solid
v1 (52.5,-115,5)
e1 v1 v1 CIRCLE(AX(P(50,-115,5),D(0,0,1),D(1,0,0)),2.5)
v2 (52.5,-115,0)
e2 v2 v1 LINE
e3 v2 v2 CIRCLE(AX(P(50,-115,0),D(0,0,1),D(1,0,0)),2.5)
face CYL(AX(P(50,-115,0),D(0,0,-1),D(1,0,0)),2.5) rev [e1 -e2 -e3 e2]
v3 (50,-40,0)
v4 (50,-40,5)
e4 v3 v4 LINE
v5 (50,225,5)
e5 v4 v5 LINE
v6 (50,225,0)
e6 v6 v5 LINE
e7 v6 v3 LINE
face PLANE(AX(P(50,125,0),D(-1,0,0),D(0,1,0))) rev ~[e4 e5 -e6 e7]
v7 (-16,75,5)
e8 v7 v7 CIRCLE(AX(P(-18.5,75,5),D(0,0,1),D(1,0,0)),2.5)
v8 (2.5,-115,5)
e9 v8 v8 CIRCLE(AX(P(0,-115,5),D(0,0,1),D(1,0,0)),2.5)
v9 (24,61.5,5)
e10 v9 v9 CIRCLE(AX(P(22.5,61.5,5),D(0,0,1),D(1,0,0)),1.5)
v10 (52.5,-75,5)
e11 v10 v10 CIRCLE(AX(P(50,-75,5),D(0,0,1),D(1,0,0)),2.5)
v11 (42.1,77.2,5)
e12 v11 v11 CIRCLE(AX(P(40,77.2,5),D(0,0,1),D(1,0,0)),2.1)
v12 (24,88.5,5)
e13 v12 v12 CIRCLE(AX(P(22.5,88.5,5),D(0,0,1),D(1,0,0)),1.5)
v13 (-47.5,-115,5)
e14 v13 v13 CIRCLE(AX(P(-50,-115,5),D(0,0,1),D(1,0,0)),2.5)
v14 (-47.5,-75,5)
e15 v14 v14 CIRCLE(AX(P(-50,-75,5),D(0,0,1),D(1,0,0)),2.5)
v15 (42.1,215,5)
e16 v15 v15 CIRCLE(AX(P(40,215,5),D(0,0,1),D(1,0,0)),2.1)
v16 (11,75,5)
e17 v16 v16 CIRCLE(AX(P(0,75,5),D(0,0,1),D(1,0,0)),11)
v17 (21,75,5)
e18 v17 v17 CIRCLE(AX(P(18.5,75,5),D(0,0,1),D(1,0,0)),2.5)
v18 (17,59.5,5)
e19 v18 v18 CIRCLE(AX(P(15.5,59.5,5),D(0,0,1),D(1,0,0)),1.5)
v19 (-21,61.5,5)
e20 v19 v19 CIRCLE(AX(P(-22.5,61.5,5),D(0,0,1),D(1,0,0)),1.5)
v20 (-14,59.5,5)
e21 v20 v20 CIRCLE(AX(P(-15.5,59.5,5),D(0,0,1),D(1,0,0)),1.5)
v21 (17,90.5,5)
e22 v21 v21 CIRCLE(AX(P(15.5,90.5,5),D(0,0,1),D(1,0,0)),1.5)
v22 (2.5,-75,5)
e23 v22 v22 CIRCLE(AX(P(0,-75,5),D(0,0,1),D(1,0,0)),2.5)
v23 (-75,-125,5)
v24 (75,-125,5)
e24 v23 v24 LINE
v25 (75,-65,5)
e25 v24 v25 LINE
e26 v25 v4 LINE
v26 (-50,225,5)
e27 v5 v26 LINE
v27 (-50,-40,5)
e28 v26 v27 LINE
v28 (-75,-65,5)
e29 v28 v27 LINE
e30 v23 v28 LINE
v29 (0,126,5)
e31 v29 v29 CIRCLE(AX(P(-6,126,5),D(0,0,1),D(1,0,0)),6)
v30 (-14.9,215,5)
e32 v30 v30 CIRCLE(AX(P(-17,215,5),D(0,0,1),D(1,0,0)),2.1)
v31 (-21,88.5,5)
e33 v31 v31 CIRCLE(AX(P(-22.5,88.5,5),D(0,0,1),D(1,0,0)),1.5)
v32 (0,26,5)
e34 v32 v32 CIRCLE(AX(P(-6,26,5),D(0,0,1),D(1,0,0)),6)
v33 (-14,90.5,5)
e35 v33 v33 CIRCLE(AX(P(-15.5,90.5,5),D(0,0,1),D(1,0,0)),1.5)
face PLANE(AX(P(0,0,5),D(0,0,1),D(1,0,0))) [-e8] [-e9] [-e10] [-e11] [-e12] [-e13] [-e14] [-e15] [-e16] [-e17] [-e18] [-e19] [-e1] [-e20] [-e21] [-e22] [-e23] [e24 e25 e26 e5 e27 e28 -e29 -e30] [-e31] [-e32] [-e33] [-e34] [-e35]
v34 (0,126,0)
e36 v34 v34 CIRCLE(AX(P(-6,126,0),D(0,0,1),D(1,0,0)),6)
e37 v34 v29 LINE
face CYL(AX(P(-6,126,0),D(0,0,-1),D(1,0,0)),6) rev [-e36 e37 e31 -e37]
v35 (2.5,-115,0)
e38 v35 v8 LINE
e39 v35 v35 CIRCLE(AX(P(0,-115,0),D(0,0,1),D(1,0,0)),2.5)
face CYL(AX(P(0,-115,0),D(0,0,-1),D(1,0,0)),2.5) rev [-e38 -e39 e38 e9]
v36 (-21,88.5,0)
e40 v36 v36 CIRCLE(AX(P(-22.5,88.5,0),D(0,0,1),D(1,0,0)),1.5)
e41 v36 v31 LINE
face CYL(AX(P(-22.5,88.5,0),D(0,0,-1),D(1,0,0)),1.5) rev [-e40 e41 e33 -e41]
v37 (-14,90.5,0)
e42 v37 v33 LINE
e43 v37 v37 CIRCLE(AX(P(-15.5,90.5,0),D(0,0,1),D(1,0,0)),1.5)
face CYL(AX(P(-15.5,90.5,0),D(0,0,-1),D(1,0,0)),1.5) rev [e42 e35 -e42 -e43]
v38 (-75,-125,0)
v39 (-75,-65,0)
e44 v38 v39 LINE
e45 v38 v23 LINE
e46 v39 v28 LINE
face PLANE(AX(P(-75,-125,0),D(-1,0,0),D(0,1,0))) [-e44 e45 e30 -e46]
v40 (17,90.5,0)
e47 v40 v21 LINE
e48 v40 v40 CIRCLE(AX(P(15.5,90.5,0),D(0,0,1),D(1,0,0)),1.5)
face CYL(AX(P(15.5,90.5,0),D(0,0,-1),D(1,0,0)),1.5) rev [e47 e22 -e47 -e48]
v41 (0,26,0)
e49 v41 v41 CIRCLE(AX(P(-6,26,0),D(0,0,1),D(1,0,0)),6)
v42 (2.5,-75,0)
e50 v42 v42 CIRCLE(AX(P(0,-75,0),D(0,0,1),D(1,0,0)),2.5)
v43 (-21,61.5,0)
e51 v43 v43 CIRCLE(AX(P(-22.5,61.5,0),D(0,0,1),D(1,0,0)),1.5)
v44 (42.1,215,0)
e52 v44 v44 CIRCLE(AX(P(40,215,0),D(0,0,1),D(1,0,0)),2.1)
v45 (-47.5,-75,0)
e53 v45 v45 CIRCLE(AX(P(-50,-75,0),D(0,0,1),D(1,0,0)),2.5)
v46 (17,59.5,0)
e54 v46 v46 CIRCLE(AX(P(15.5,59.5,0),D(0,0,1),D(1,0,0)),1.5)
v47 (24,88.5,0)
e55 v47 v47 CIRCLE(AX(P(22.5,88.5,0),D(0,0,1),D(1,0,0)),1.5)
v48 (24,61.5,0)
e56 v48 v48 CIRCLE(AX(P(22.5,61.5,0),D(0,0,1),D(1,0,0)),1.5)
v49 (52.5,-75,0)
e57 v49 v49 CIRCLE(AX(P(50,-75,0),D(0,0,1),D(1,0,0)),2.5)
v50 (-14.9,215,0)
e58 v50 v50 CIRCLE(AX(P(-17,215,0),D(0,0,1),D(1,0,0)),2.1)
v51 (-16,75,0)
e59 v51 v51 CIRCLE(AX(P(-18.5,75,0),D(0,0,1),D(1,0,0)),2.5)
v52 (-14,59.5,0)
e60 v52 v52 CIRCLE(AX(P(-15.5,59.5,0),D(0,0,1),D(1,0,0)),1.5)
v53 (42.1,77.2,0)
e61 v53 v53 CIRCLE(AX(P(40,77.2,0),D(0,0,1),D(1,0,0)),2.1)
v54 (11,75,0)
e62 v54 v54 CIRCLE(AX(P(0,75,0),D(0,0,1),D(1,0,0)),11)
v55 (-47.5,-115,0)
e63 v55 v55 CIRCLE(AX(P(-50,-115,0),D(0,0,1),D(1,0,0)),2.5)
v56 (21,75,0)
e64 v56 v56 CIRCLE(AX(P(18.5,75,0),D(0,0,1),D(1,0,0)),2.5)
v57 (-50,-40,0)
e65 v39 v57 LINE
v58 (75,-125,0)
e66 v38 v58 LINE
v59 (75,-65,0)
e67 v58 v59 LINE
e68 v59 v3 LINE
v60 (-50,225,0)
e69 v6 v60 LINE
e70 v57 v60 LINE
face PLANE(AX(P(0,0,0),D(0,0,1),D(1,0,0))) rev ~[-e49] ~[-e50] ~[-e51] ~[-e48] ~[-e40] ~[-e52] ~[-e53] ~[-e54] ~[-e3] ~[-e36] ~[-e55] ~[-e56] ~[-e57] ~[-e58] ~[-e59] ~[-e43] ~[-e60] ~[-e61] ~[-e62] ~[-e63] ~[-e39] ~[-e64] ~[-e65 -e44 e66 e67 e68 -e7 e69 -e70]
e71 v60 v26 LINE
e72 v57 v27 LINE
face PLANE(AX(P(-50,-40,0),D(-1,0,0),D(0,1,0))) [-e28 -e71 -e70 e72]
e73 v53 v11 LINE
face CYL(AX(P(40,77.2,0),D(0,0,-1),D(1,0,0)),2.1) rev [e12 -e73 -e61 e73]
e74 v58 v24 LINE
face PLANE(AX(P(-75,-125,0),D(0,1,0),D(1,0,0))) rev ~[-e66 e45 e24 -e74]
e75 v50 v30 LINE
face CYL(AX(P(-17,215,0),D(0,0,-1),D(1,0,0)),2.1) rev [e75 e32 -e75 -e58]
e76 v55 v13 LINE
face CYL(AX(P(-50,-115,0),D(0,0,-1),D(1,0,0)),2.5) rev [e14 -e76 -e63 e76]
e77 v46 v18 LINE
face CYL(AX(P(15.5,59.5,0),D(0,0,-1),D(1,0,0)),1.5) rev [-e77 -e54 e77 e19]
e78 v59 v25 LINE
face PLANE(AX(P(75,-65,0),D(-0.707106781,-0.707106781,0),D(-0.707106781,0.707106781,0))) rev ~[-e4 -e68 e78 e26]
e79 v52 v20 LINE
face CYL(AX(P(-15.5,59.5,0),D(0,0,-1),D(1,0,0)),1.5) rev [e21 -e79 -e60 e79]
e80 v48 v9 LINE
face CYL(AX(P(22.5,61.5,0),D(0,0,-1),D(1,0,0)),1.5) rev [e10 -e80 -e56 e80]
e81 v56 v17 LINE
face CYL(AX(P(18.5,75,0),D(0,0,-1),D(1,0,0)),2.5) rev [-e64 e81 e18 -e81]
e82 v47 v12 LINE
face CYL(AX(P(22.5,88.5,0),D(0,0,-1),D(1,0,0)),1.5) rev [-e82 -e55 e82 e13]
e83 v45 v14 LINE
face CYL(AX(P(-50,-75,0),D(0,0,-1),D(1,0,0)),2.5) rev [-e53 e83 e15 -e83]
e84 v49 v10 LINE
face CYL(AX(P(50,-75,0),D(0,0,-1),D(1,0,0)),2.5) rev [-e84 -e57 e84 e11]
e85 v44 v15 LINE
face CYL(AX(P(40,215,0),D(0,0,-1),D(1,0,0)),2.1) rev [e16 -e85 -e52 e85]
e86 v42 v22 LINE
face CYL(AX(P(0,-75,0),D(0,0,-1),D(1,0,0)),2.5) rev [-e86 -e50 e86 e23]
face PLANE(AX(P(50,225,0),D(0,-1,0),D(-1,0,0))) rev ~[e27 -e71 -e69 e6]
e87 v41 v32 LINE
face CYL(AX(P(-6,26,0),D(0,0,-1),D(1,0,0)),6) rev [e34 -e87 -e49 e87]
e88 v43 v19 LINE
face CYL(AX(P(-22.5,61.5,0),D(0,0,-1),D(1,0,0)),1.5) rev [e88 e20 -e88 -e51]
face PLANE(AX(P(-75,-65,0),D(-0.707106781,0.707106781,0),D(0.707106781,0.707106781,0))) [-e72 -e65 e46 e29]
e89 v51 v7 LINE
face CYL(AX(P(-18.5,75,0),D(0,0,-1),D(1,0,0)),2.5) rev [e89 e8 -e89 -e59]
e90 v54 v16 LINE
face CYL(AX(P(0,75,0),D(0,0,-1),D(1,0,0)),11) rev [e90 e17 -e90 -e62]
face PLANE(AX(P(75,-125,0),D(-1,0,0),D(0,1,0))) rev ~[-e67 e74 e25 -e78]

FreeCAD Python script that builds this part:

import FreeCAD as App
import Part
import Sketcher
from FreeCAD import Vector

doc = App.newDocument("Part")
body = doc.addObject("PartDesign::Body", "Body")

# Sketch on XY plane
sketch1 = doc.addObject("Sketcher::SketchObject", "Sketch")
body.addObject(sketch1)
sketch1.AttachmentSupport = (doc.XY_Plane, [""])
sketch1.MapMode = "FlatFace"
sketch1.addGeometry(Part.LineSegment(Vector(-75, -65, 0), Vector(-75, -125, 0)), False)
sketch1.addGeometry(Part.LineSegment(Vector(-75, -125, 0), Vector(75, -125, 0)), False)
sketch1.addGeometry(Part.LineSegment(Vector(75, -125, 0), Vector(75, -65, 0)), False)
sketch1.addGeometry(Part.LineSegment(Vector(75, -65, 0), Vector(50, -40, 0)), False)
sketch1.addGeometry(Part.LineSegment(Vector(50, -40, 0), Vector(50, 225, 0)), False)
sketch1.addGeometry(Part.LineSegment(Vector(50, 225, 0), Vector(-50, 225, 0)), False)
sketch1.addGeometry(Part.LineSegment(Vector(-50, 225, 0), Vector(-50, -40, 0)), False)
sketch1.addGeometry(Part.LineSegment(Vector(-50, -40, 0), Vector(-75, -65, 0)), False)
sketch1.addGeometry(Part.Circle(Vector(-50, -115, 0), Vector(0, 0, 1), 2.5), False)
sketch1.addGeometry(Part.Circle(Vector(-50, -75, 0), Vector(0, 0, 1), 2.5), False)
sketch1.addGeometry(Part.Circle(Vector(0, -115, 0), Vector(0, 0, 1), 2.5), False)
sketch1.addGeometry(Part.Circle(Vector(0, -75, 0), Vector(0, 0, 1), 2.5), False)
sketch1.addGeometry(Part.Circle(Vector(50, -115, 0), Vector(0, 0, 1), 2.5), False)
sketch1.addGeometry(Part.Circle(Vector(50, -75, 0), Vector(0, 0, 1), 2.5), False)
sketch1.addGeometry(Part.Circle(Vector(40, 215, 0), Vector(0, 0, 1), 2.1), False)
sketch1.addGeometry(Part.Circle(Vector(-6, 26, 0), Vector(0, 0, 1), 6), False)
sketch1.addGeometry(Part.Circle(Vector(-22.5, 61.5, 0), Vector(0, 0, 1), 1.5), False)
sketch1.addGeometry(Part.Circle(Vector(-22.5, 88.5, 0), Vector(0, 0, 1), 1.5), False)
sketch1.addGeometry(Part.Circle(Vector(-15.5, 59.5, 0), Vector(0, 0, 1), 1.5), False)
sketch1.addGeometry(Part.Circle(Vector(-18.5, 75, 0), Vector(0, 0, 1), 2.5), False)
sketch1.addGeometry(Part.Circle(Vector(-15.5, 90.5, 0), Vector(0, 0, 1), 1.5), False)
sketch1.addGeometry(Part.Circle(Vector(-6, 126, 0), Vector(0, 0, 1), 6), False)
sketch1.addGeometry(Part.Circle(Vector(-17, 215, 0), Vector(0, 0, 1), 2.1), False)
sketch1.addGeometry(Part.Circle(Vector(15.5, 59.5, 0), Vector(0, 0, 1), 1.5), False)
sketch1.addGeometry(Part.Circle(Vector(0, 75, 0), Vector(0, 0, 1), 11), False)
sketch1.addGeometry(Part.Circle(Vector(18.5, 75, 0), Vector(0, 0, 1), 2.5), False)
sketch1.addGeometry(Part.Circle(Vector(15.5, 90.5, 0), Vector(0, 0, 1), 1.5), False)
sketch1.addGeometry(Part.Circle(Vector(22.5, 61.5, 0), Vector(0, 0, 1), 1.5), False)
sketch1.addGeometry(Part.Circle(Vector(22.5, 88.5, 0), Vector(0, 0, 1), 1.5), False)
sketch1.addGeometry(Part.Circle(Vector(40, 77.2, 0), Vector(0, 0, 1), 2.1), False)
sketch1.addConstraint(Sketcher.Constraint("Coincident", 0, 2, 1, 1))
sketch1.addConstraint(Sketcher.Constraint("Coincident", 1, 2, 2, 1))
sketch1.addConstraint(Sketcher.Constraint("Coincident", 2, 2, 3, 1))
sketch1.addConstraint(Sketcher.Constraint("Coincident", 3, 2, 4, 1))
sketch1.addConstraint(Sketcher.Constraint("Coincident", 4, 2, 5, 1))
sketch1.addConstraint(Sketcher.Constraint("Coincident", 5, 2, 6, 1))
sketch1.addConstraint(Sketcher.Constraint("Coincident", 6, 2, 7, 1))
sketch1.addConstraint(Sketcher.Constraint("Coincident", 7, 2, 0, 1))
sketch1.addConstraint(Sketcher.Constraint("Vertical", 0))
sketch1.addConstraint(Sketcher.Constraint("Horizontal", 1))
sketch1.addConstraint(Sketcher.Constraint("Vertical", 2))
sketch1.addConstraint(Sketcher.Constraint("Vertical", 4))
sketch1.addConstraint(Sketcher.Constraint("Horizontal", 5))
sketch1.addConstraint(Sketcher.Constraint("Vertical", 6))
sketch1.addConstraint(Sketcher.Constraint("Equal", 8, 9))
sketch1.addConstraint(Sketcher.Constraint("Equal", 9, 10))
sketch1.addConstraint(Sketcher.Constraint("Equal", 10, 11))
sketch1.addConstraint(Sketcher.Constraint("Equal", 11, 12))
sketch1.addConstraint(Sketcher.Constraint("Equal", 12, 13))
sketch1.addConstraint(Sketcher.Constraint("Equal", 16, 17))
sketch1.addConstraint(Sketcher.Constraint("Equal", 17, 18))
sketch1.addConstraint(Sketcher.Constraint("Equal", 13, 19))
sketch1.addConstraint(Sketcher.Constraint("Equal", 18, 20))
sketch1.addConstraint(Sketcher.Constraint("Equal", 15, 21))
sketch1.addConstraint(Sketcher.Constraint("Equal", 14, 22))
sketch1.addConstraint(Sketcher.Constraint("Equal", 20, 23))
sketch1.addConstraint(Sketcher.Constraint("Equal", 19, 25))
sketch1.addConstraint(Sketcher.Constraint("Equal", 23, 26))
sketch1.addConstraint(Sketcher.Constraint("Equal", 26, 27))
sketch1.addConstraint(Sketcher.Constraint("Equal", 27, 28))
sketch1.addConstraint(Sketcher.Constraint("Equal", 22, 29))
sketch1.addConstraint(Sketcher.Constraint("Symmetric", 11, 3, 24, 3, -1, 1))
sketch1.addConstraint(Sketcher.Constraint("Symmetric", 8, 3, 12, 3, -2))
sketch1.addConstraint(Sketcher.Constraint("Symmetric", 9, 3, 13, 3, -2))
sketch1.addConstraint(Sketcher.Constraint("Symmetric", 18, 3, 23, 3, -2))
sketch1.addConstraint(Sketcher.Constraint("Symmetric", 19, 3, 25, 3, -2))
sketch1.addConstraint(Sketcher.Constraint("Symmetric", 20, 3, 26, 3, -2))
sketch1.addConstraint(Sketcher.Constraint("Symmetric", 16, 3, 27, 3, -2))
sketch1.addConstraint(Sketcher.Constraint("Symmetric", 17, 3, 28, 3, -2))
sketch1.addConstraint(Sketcher.Constraint("Symmetric", 3, 2, 6, 2, -2))
sketch1.addConstraint(Sketcher.Constraint("Symmetric", 2, 2, 7, 2, -2))
sketch1.addConstraint(Sketcher.Constraint("PointOnObject", 10, 3, -2))
sketch1.addConstraint(Sketcher.Constraint("PointOnObject", 11, 3, -2))
sketch1.addConstraint(Sketcher.Constraint("Perpendicular", 3, 7))
sketch1.addConstraint(Sketcher.Constraint("Horizontal", 8, 3, 10, 3))
sketch1.addConstraint(Sketcher.Constraint("Horizontal", 9, 3, 11, 3))
sketch1.addConstraint(Sketcher.Constraint("Horizontal", 14, 3, 22, 3))
sketch1.addConstraint(Sketcher.Constraint("Horizontal", 19, 3, 24, 3))
sketch1.addConstraint(Sketcher.Constraint("Vertical", 8, 3, 9, 3))
sketch1.addConstraint(Sketcher.Constraint("Vertical", 16, 3, 17, 3))
sketch1.addConstraint(Sketcher.Constraint("Vertical", 18, 3, 20, 3))
sketch1.addConstraint(Sketcher.Constraint("Vertical", 15, 3, 21, 3))
sketch1.addConstraint(Sketcher.Constraint("Vertical", 14, 3, 29, 3))
sketch1.addConstraint(Sketcher.Constraint("Vertical", 13, 3, 3, 2))
sketch1.addConstraint(Sketcher.Constraint("Diameter", 8, 5.0))
sketch1.addConstraint(Sketcher.Constraint("Diameter", 15, 12.0))
sketch1.addConstraint(Sketcher.Constraint("Diameter", 16, 3.0))
sketch1.addConstraint(Sketcher.Constraint("Diameter", 24, 22.0))
sketch1.addConstraint(Sketcher.Constraint("Diameter", 14, 4.2))
sketch1.addConstraint(Sketcher.Constraint("DistanceX", 1, 1, 1, 2, 150.0))
sketch1.addConstraint(Sketcher.Constraint("DistanceX", 5, 2, 5, 1, 100.0))
sketch1.addConstraint(Sketcher.Constraint("DistanceY", 0, 2, 0, 1, 60.0))
sketch1.addConstraint(Sketcher.Constraint("DistanceY", 8, 3, -1, 1, 115.0))
sketch1.addConstraint(Sketcher.Constraint("DistanceX", -1, 1, 14, 3, 40.0))
sketch1.addConstraint(Sketcher.Constraint("DistanceX", 15, 3, -1, 1, 6.0))
sketch1.addConstraint(Sketcher.Constraint("DistanceY", 3, 2, -1, 1, 40.0))
sketch1.addConstraint(Sketcher.Constraint("DistanceY", 8, 3, 9, 3, 40.0))
sketch1.addConstraint(Sketcher.Constraint("DistanceY", 16, 3, 17, 3, 27.0))
sketch1.addConstraint(Sketcher.Constraint("DistanceX", 19, 3, 18, 3, 3.0))
sketch1.addConstraint(Sketcher.Constraint("DistanceX", 22, 3, 14, 3, 57.0))
sketch1.addConstraint(Sketcher.Constraint("DistanceY", 3, 2, 15, 3, 66.0))
sketch1.addConstraint(Sketcher.Constraint("DistanceY", 14, 3, 4, 2, 10.0))
sketch1.addConstraint(Sketcher.Constraint("DistanceX", 16, 3, -1, 1, 22.5))
sketch1.addConstraint(Sketcher.Constraint("DistanceX", 18, 3, -1, 1, 15.5))
sketch1.addConstraint(Sketcher.Constraint("DistanceY", 16, 3, 19, 3, 13.5))
sketch1.addConstraint(Sketcher.Constraint("DistanceY", 18, 3, 19, 3, 15.5))
sketch1.addConstraint(Sketcher.Constraint("DistanceY", 19, 3, 20, 3, 15.5))
sketch1.addConstraint(Sketcher.Constraint("DistanceY", 4, 1, 4, 2, 265.0))
sketch1.addConstraint(Sketcher.Constraint("DistanceY", -1, 1, 21, 3, 126.0))
sketch1.addConstraint(Sketcher.Constraint("DistanceY", -1, 1, 29, 3, 77.2))
pad1 = doc.addObject("PartDesign::Pad", "Pad")
body.addObject(pad1)
pad1.Profile = sketch1
pad1.Length = 5

doc.recompute()
